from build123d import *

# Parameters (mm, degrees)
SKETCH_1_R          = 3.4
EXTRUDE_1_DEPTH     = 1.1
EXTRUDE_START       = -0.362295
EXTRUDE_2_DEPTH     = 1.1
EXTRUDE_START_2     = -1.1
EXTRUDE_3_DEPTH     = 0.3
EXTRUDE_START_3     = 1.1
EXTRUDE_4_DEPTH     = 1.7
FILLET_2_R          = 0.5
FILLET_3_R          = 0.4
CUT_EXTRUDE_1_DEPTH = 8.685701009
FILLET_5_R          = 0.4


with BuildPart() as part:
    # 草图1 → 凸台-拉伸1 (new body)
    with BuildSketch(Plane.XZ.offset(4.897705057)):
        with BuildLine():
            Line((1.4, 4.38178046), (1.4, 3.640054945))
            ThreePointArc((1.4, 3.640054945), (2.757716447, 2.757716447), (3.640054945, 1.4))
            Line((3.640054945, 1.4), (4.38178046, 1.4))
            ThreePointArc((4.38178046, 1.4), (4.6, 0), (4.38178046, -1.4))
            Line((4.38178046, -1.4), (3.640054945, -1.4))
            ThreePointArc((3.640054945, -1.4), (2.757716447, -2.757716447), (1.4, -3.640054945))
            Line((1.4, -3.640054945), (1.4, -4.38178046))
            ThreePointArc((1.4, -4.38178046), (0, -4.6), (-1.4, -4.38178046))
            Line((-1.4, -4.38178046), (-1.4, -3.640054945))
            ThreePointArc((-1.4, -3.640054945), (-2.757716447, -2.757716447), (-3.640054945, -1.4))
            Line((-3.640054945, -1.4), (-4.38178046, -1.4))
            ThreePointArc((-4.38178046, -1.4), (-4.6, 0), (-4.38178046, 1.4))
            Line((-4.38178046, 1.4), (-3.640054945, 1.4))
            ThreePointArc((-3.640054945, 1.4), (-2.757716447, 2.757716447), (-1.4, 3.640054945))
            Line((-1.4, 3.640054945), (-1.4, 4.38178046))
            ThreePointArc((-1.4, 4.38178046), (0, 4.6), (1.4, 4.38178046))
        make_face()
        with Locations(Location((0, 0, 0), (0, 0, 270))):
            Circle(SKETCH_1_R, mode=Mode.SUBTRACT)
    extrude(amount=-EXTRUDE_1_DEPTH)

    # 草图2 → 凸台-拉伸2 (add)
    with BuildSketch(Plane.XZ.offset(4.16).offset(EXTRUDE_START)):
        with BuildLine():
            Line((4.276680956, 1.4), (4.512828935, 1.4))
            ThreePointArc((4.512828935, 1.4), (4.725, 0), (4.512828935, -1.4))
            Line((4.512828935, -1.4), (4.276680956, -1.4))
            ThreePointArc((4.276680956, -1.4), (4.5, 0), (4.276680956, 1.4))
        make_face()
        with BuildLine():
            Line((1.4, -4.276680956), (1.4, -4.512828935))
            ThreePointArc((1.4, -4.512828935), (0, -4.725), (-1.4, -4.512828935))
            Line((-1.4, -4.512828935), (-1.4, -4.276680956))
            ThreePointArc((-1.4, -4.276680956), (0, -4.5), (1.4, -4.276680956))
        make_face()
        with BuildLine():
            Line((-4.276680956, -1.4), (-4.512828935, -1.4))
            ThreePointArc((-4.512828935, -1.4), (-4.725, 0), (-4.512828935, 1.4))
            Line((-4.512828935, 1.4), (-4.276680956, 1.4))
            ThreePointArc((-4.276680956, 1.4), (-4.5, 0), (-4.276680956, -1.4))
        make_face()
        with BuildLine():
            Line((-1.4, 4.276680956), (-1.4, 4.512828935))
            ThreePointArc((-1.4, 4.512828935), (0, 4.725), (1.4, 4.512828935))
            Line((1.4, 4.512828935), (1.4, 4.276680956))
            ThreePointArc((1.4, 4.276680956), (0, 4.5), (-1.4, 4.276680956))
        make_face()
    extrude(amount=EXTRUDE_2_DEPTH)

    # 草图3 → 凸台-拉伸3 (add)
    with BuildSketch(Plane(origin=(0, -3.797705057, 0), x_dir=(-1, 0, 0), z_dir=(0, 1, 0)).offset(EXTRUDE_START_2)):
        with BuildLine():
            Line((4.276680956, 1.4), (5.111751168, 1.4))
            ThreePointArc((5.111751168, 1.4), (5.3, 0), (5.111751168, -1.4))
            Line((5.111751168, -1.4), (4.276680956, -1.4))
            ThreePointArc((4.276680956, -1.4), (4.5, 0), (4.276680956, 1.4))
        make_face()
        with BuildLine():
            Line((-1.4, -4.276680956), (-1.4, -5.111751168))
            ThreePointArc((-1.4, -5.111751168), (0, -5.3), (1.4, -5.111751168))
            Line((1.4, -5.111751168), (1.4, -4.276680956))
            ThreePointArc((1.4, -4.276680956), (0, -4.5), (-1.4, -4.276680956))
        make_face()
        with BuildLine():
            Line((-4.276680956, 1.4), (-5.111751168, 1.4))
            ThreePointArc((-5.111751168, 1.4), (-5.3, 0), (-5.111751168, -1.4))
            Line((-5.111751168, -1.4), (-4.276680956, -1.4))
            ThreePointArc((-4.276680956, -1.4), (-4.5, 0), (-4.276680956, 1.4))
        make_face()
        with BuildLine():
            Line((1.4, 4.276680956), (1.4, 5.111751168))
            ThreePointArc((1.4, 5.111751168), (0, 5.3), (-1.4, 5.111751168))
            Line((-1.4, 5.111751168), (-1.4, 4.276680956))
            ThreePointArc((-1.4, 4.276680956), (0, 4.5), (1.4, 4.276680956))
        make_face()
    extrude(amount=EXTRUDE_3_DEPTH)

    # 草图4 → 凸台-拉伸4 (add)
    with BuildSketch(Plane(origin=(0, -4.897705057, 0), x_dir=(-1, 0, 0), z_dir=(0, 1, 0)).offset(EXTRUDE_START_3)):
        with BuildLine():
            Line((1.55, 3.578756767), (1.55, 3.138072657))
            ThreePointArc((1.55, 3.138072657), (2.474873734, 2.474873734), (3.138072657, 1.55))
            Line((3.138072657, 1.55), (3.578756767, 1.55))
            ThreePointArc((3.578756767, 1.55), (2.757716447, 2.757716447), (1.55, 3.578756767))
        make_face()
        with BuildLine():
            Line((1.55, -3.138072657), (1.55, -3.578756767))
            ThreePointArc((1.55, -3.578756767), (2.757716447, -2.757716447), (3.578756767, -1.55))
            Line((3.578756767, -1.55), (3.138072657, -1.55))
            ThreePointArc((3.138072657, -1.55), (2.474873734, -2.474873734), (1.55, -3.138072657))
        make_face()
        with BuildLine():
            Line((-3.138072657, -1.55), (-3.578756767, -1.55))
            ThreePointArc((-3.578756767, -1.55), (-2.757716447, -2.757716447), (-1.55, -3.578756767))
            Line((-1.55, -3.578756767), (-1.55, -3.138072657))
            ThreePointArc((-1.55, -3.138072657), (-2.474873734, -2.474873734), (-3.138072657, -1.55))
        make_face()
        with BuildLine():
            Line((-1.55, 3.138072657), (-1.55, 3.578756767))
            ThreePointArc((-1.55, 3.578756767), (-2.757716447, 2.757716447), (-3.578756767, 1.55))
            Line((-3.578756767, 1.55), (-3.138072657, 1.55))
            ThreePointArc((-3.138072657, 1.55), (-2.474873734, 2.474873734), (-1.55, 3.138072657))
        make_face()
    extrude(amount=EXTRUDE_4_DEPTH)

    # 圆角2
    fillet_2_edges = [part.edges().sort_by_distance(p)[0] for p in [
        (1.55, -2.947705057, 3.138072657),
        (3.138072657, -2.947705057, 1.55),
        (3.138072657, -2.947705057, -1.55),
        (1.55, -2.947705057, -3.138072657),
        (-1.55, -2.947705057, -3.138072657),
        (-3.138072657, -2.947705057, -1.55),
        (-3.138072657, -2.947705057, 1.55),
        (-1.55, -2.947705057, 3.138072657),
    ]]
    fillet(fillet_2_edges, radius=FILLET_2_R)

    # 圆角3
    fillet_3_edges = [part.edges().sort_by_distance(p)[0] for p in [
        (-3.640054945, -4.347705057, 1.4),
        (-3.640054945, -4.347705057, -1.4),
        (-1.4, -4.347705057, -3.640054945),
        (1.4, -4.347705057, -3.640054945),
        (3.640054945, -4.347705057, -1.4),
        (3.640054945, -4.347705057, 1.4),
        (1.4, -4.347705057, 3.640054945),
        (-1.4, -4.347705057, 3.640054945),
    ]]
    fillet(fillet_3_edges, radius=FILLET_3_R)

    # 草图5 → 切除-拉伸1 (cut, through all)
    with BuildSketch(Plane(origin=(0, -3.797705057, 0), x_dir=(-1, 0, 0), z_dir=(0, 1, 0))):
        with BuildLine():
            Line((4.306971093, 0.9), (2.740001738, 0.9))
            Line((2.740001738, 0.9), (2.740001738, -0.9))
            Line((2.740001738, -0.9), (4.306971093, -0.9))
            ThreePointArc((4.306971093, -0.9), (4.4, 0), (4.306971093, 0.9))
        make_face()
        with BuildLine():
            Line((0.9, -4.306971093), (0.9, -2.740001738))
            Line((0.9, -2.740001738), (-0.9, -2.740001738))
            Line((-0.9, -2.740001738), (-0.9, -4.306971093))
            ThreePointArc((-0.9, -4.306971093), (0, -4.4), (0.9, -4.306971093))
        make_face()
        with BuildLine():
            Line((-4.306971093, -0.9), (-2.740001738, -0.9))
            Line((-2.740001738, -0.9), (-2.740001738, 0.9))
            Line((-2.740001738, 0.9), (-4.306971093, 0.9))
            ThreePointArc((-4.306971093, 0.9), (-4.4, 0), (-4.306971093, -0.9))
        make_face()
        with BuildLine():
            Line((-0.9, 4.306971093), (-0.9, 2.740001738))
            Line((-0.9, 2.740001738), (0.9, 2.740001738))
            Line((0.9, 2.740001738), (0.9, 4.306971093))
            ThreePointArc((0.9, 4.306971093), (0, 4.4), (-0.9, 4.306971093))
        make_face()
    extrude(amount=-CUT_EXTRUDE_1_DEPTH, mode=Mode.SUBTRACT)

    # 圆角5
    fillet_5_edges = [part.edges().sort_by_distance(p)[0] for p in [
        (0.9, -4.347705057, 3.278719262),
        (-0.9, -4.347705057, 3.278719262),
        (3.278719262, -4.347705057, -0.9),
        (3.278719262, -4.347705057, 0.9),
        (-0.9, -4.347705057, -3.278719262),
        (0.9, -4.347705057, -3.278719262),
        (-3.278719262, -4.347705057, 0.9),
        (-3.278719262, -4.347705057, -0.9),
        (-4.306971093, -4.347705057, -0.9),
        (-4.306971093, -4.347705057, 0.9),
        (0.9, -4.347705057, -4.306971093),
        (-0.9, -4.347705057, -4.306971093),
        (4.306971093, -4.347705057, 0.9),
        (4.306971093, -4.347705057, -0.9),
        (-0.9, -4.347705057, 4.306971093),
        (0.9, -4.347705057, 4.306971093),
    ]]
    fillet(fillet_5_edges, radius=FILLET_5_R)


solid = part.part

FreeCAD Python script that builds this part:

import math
import FreeCAD as App
import Part
import Sketcher

V = App.Vector


def edges_at(feature, points):
    """Names of the edges that pass closest to the given points."""
    edges = feature.Shape.Edges
    near = lambda p: min(range(len(edges)), key=lambda i: edges[i].distToShape(Part.Vertex(*p))[0])
    return sorted({f"Edge{near(p) + 1}" for p in points})

doc = App.newDocument("Part")
body = doc.addObject("PartDesign::Body", "Body")

sketch1 = doc.addObject("Sketcher::SketchObject", "Sketch")
body.addObject(sketch1)
sketch1.AttachmentSupport = (doc.XZ_Plane, [""])
sketch1.MapMode = "FlatFace"
sketch1.AttachmentOffset = App.Placement(V(0, 0, 4.897705), App.Rotation())
sketch1.addGeometry([
    Part.LineSegment(V(1.4, 3.6, 0), V(1.4, 4.4, 0)),
    Part.ArcOfCircle(Part.Circle(V(0, 0, 0), V(0, 0, 1), 4.6), math.radians(72), math.radians(108)),
    Part.LineSegment(V(-1.4, 4.4, 0), V(-1.4, 3.6, 0)),
    Part.ArcOfCircle(Part.Circle(V(0, 0, 0), V(0, 0, 1), 3.9), math.radians(111), math.radians(159)),
    Part.LineSegment(V(-3.6, 1.4, 0), V(-4.4, 1.4, 0)),
    Part.ArcOfCircle(Part.Circle(V(0, 0, 0), V(0, 0, 1), 4.6), math.radians(162), math.radians(198)),
    Part.LineSegment(V(-4.4, -1.4, 0), V(-3.6, -1.4, 0)),
    Part.ArcOfCircle(Part.Circle(V(0, 0, 0), V(0, 0, 1), 3.9), math.radians(-159), math.radians(-111)),
    Part.LineSegment(V(-1.4, -3.6, 0), V(-1.4, -4.4, 0)),
    Part.ArcOfCircle(Part.Circle(V(0, 0, 0), V(0, 0, 1), 4.6), math.radians(-108), math.radians(-72)),
    Part.LineSegment(V(1.4, -4.4, 0), V(1.4, -3.6, 0)),
    Part.ArcOfCircle(Part.Circle(V(0, 0, 0), V(0, 0, 1), 3.9), math.radians(-69), math.radians(-21)),
    Part.LineSegment(V(3.6, -1.4, 0), V(4.4, -1.4, 0)),
    Part.ArcOfCircle(Part.Circle(V(0, 0, 0), V(0, 0, 1), 4.6), math.radians(-18), math.radians(18)),
    Part.LineSegment(V(4.4, 1.4, 0), V(3.6, 1.4, 0)),
    Part.ArcOfCircle(Part.Circle(V(0, 0, 0), V(0, 0, 1), 3.9), math.radians(21), math.radians(69)),
    Part.Circle(V(0, 0, 0), V(0, 0, 1), 3.4),
], False)
sketch1.addConstraint([
    Sketcher.Constraint("Coincident", 0, 2, 1, 1),
    Sketcher.Constraint("Coincident", 1, 2, 2, 1),
    Sketcher.Constraint("Coincident", 2, 2, 3, 1),
    Sketcher.Constraint("Coincident", 3, 2, 4, 1),
    Sketcher.Constraint("Coincident", 4, 2, 5, 1),
    Sketcher.Constraint("Coincident", 5, 2, 6, 1),
    Sketcher.Constraint("Coincident", 6, 2, 7, 1),
    Sketcher.Constraint("Coincident", 7, 2, 8, 1),
    Sketcher.Constraint("Coincident", 8, 2, 9, 1),
    Sketcher.Constraint("Coincident", 9, 2, 10, 1),
    Sketcher.Constraint("Coincident", 10, 2, 11, 1),
    Sketcher.Constraint("Coincident", 11, 2, 12, 1),
    Sketcher.Constraint("Coincident", 12, 2, 13, 1),
    Sketcher.Constraint("Coincident", 13, 2, 14, 1),
    Sketcher.Constraint("Coincident", 14, 2, 15, 1),
    Sketcher.Constraint("Coincident", 15, 2, 0, 1),
    Sketcher.Constraint("Vertical", 0),
    Sketcher.Constraint("Vertical", 2),
    Sketcher.Constraint("Horizontal", 4),
    Sketcher.Constraint("Horizontal", 6),
    Sketcher.Constraint("Vertical", 8),
    Sketcher.Constraint("Vertical", 10),
    Sketcher.Constraint("Horizontal", 12),
    Sketcher.Constraint("Horizontal", 14),
    Sketcher.Constraint("Coincident", 1, 3, -1, 1),
    Sketcher.Constraint("Coincident", 3, 3, -1, 1),
    Sketcher.Constraint("Coincident", 5, 3, -1, 1),
    Sketcher.Constraint("Coincident", 7, 3, -1, 1),
    Sketcher.Constraint("Coincident", 9, 3, -1, 1),
    Sketcher.Constraint("Coincident", 11, 3, -1, 1),
    Sketcher.Constraint("Coincident", 13, 3, -1, 1),
    Sketcher.Constraint("Coincident", 15, 3, -1, 1),
    Sketcher.Constraint("Coincident", 16, 3, -1, 1),
    Sketcher.Constraint("Equal", 1, 5),
    Sketcher.Constraint("Equal", 3, 7),
    Sketcher.Constraint("Equal", 5, 9),
    Sketcher.Constraint("Equal", 7, 11),
    Sketcher.Constraint("Equal", 9, 13),
    Sketcher.Constraint("Equal", 11, 15),
    Sketcher.Constraint("Horizontal", 0, 2, 1, 2),
    Sketcher.Constraint("Horizontal", 8, 2, 9, 2),
    Sketcher.Constraint("Horizontal", 6, 2, 11, 2),
    Sketcher.Constraint("Horizontal", 4, 2, 13, 2),
    Sketcher.Constraint("Vertical", 4, 2, 5, 2),
    Sketcher.Constraint("Vertical", 2, 2, 7, 2),
    Sketcher.Constraint("Equal", 14, 0),
    Sketcher.Constraint("Diameter", 16, 6.8),
    Sketcher.Constraint("Radius", 1, 4.6),
    Sketcher.Constraint("Radius", 3, 3.9),
    Sketcher.Constraint("DistanceX", -1, 1, 0, 2, 1.4),
])
pad1 = doc.addObject("PartDesign::Pad", "Pad")
body.addObject(pad1)
pad1.Profile = sketch1
pad1.Length = 1.1
pad1.Reversed = True

sketch2 = doc.addObject("Sketcher::SketchObject", "Sketch001")
body.addObject(sketch2)
sketch2.AttachmentSupport = (doc.XZ_Plane, [""])
sketch2.MapMode = "FlatFace"
sketch2.AttachmentOffset = App.Placement(V(0, 0, 3.797705), App.Rotation())
sketch2.addGeometry([
    Part.LineSegment(V(4.51, 1.4, 0), V(4.28, 1.4, 0)),
    Part.ArcOfCircle(Part.Circle(V(0, 0, 0), V(0, 0, 1), 4.5), math.radians(-18), math.radians(18)),
    Part.LineSegment(V(4.28, -1.4, 0), V(4.51, -1.4, 0)),
    Part.ArcOfCircle(Part.Circle(V(0, 0, 0), V(0, 0, 1), 4.72), math.radians(-17), math.radians(17)),
    Part.LineSegment(V(1.4, -4.51, 0), V(1.4, -4.28, 0)),
    Part.ArcOfCircle(Part.Circle(V(0, 0, 0), V(0, 0, 1), 4.5), math.radians(-108), math.radians(-72)),
    Part.LineSegment(V(-1.4, -4.28, 0), V(-1.4, -4.51, 0)),
    Part.ArcOfCircle(Part.Circle(V(0, 0, 0), V(0, 0, 1), 4.72), math.radians(-107), math.radians(-73)),
    Part.LineSegment(V(-4.51, -1.4, 0), V(-4.28, -1.4, 0)),
    Part.ArcOfCircle(Part.Circle(V(0, 0, 0), V(0, 0, 1), 4.5), math.radians(162), math.radians(198)),
    Part.LineSegment(V(-4.28, 1.4, 0), V(-4.51, 1.4, 0)),
    Part.ArcOfCircle(Part.Circle(V(0, 0, 0), V(0, 0, 1), 4.72), math.radians(163), math.radians(197)),
    Part.LineSegment(V(-1.4, 4.51, 0), V(-1.4, 4.28, 0)),
    Part.ArcOfCircle(Part.Circle(V(0, 0, 0), V(0, 0, 1), 4.5), math.radians(72), math.radians(108)),
    Part.LineSegment(V(1.4, 4.28, 0), V(1.4, 4.51, 0)),
    Part.ArcOfCircle(Part.Circle(V(0, 0, 0), V(0, 0, 1), 4.72), math.radians(73), math.radians(107)),
], False)
sketch2.addConstraint([
    Sketcher.Constraint("Coincident", 0, 2, 1, 2),
    Sketcher.Constraint("Coincident", 1, 1, 2, 1),
    Sketcher.Constraint("Coincident", 2, 2, 3, 1),
    Sketcher.Constraint("Coincident", 3, 2, 0, 1),
    Sketcher.Constraint("Coincident", 4, 2, 5, 2),
    Sketcher.Constraint("Coincident", 5, 1, 6, 1),
    Sketcher.Constraint("Coincident", 6, 2, 7, 1),
    Sketcher.Constraint("Coincident", 7, 2, 4, 1),
    Sketcher.Constraint("Coincident", 8, 2, 9, 2),
    Sketcher.Constraint("Coincident", 9, 1, 10, 1),
    Sketcher.Constraint("Coincident", 10, 2, 11, 1),
    Sketcher.Constraint("Coincident", 11, 2, 8, 1),
    Sketcher.Constraint("Coincident", 12, 2, 13, 2),
    Sketcher.Constraint("Coincident", 13, 1, 14, 1),
    Sketcher.Constraint("Coincident", 14, 2, 15, 1),
    Sketcher.Constraint("Coincident", 15, 2, 12, 1),
    Sketcher.Constraint("Horizontal", 0),
    Sketcher.Constraint("Horizontal", 2),
    Sketcher.Constraint("Vertical", 4),
    Sketcher.Constraint("Vertical", 6),
    Sketcher.Constraint("Horizontal", 8),
    Sketcher.Constraint("Horizontal", 10),
    Sketcher.Constraint("Vertical", 12),
    Sketcher.Constraint("Vertical", 14),
    Sketcher.Constraint("Coincident", 1, 3, -1, 1),
    Sketcher.Constraint("Coincident", 3, 3, -1, 1),
    Sketcher.Constraint("Coincident", 5, 3, -1, 1),
    Sketcher.Constraint("Coincident", 7, 3, -1, 1),
    Sketcher.Constraint("Coincident", 9, 3, -1, 1),
    Sketcher.Constraint("Coincident", 11, 3, -1, 1),
    Sketcher.Constraint("Coincident", 13, 3, -1, 1),
    Sketcher.Constraint("Coincident", 15, 3, -1, 1),
    Sketcher.Constraint("Equal", 1, 5),
    Sketcher.Constraint("Equal", 3, 7),
    Sketcher.Constraint("Equal", 5, 9),
    Sketcher.Constraint("Equal", 7, 11),
    Sketcher.Constraint("Equal", 9, 13),
    Sketcher.Constraint("Equal", 11, 15),
    Sketcher.Constraint("Horizontal", 4, 2, 5, 1),
    Sketcher.Constraint("Horizontal", 2, 2, 8, 2),
    Sketcher.Constraint("Horizontal", 3, 2, 9, 1),
    Sketcher.Constraint("Horizontal", 12, 2, 13, 1),
    Sketcher.Constraint("Vertical", 0, 2, 1, 1),
    Sketcher.Constraint("Vertical", 6, 2, 12, 2),
    Sketcher.Constraint("Equal", 10, 4),
    Sketcher.Constraint("Radius", 1, 4.5),
    Sketcher.Constraint("Radius", 3, 4.725),
    Sketcher.Constraint("DistanceY", -1, 1, 0, 2, 1.4),
])
pad2 = doc.addObject("PartDesign::Pad", "Pad001")
body.addObject(pad2)
pad2.Profile = sketch2
pad2.Length = 1.1

sketch3 = doc.addObject("Sketcher::SketchObject", "Sketch002")
body.addObject(sketch3)
sketch3.AttachmentSupport = (doc.XZ_Plane, [""])
sketch3.MapMode = "FlatFace"
sketch3.AttachmentOffset = App.Placement(V(0, 0, 4.897705), App.Rotation())
sketch3.addGeometry([
    Part.LineSegment(V(-5.1, 1.4, 0), V(-4.3, 1.4, 0)),
    Part.ArcOfCircle(Part.Circle(V(0, 0, 0), V(0, 0, 1), 4.5), math.radians(162), math.radians(198)),
    Part.LineSegment(V(-4.3, -1.4, 0), V(-5.1, -1.4, 0)),
    Part.ArcOfCircle(Part.Circle(V(0, 0, 0), V(0, 0, 1), 5.3), math.radians(165), math.radians(195)),
    Part.LineSegment(V(1.4, -4.3, 0), V(1.4, -5.1, 0)),
    Part.ArcOfCircle(Part.Circle(V(0, 0, 0), V(0, 0, 1), 5.3), math.radians(-105), math.radians(-75)),
    Part.LineSegment(V(-1.4, -5.1, 0), V(-1.4, -4.3, 0)),
    Part.ArcOfCircle(Part.Circle(V(0, 0, 0), V(0, 0, 1), 4.5), math.radians(-108), math.radians(-72)),
    Part.LineSegment(V(4.3, 1.4, 0), V(5.1, 1.4, 0)),
    Part.ArcOfCircle(Part.Circle(V(0, 0, 0), V(0, 0, 1), 5.3), math.radians(-15), math.radians(15)),
    Part.LineSegment(V(5.1, -1.4, 0), V(4.3, -1.4, 0)),
    Part.ArcOfCircle(Part.Circle(V(0, 0, 0), V(0, 0, 1), 4.5), math.radians(-18), math.radians(18)),
    Part.LineSegment(V(-1.4, 4.3, 0), V(-1.4, 5.1, 0)),
    Part.ArcOfCircle(Part.Circle(V(0, 0, 0), V(0, 0, 1), 5.3), math.radians(75), math.radians(105)),
    Part.LineSegment(V(1.4, 5.1, 0), V(1.4, 4.3, 0)),
    Part.ArcOfCircle(Part.Circle(V(0, 0, 0), V(0, 0, 1), 4.5), math.radians(72), math.radians(108)),
], False)
sketch3.addConstraint([
    Sketcher.Constraint("Coincident", 0, 2, 1, 1),
    Sketcher.Constraint("Coincident", 1, 2, 2, 1),
    Sketcher.Constraint("Coincident", 2, 2, 3, 2),
    Sketcher.Constraint("Coincident", 3, 1, 0, 1),
    Sketcher.Constraint("Coincident", 4, 2, 5, 2),
    Sketcher.Constraint("Coincident", 5, 1, 6, 1),
    Sketcher.Constraint("Coincident", 6, 2, 7, 1),
    Sketcher.Constraint("Coincident", 7, 2, 4, 1),
    Sketcher.Constraint("Coincident", 8, 2, 9, 2),
    Sketcher.Constraint("Coincident", 9, 1, 10, 1),
    Sketcher.Constraint("Coincident", 10, 2, 11, 1),
    Sketcher.Constraint("Coincident", 11, 2, 8, 1),
    Sketcher.Constraint("Coincident", 12, 2, 13, 2),
    Sketcher.Constraint("Coincident", 13, 1, 14, 1),
    Sketcher.Constraint("Coincident", 14, 2, 15, 1),
    Sketcher.Constraint("Coincident", 15, 2, 12, 1),
    Sketcher.Constraint("Horizontal", 0),
    Sketcher.Constraint("Horizontal", 2),
    Sketcher.Constraint("Vertical", 4),
    Sketcher.Constraint("Vertical", 6),
    Sketcher.Constraint("Horizontal", 8),
    Sketcher.Constraint("Horizontal", 10),
    Sketcher.Constraint("Vertical", 12),
    Sketcher.Constraint("Vertical", 14),
    Sketcher.Constraint("Coincident", 1, 3, -1, 1),
    Sketcher.Constraint("Coincident", 3, 3, -1, 1),
    Sketcher.Constraint("Coincident", 5, 3, -1, 1),
    Sketcher.Constraint("Coincident", 7, 3, -1, 1),
    Sketcher.Constraint("Coincident", 9, 3, -1, 1),
    Sketcher.Constraint("Coincident", 11, 3, -1, 1),
    Sketcher.Constraint("Coincident", 13, 3, -1, 1),
    Sketcher.Constraint("Coincident", 15, 3, -1, 1),
    Sketcher.Constraint("Equal", 3, 5),
    Sketcher.Constraint("Equal", 1, 7),
    Sketcher.Constraint("Equal", 5, 9),
    Sketcher.Constraint("Equal", 7, 11),
    Sketcher.Constraint("Equal", 9, 13),
    Sketcher.Constraint("Equal", 11, 15),
    Sketcher.Constraint("Horizontal", 4, 2, 5, 1),
    Sketcher.Constraint("Horizontal", 3, 1, 8, 2),
    Sketcher.Constraint("Horizontal", 2, 2, 9, 1),
    Sketcher.Constraint("Horizontal", 12, 2, 13, 1),
    Sketcher.Constraint("Vertical", 0, 2, 1, 2),
    Sketcher.Constraint("Vertical", 6, 2, 12, 2),
    Sketcher.Constraint("Equal", 10, 4),
    Sketcher.Constraint("Radius", 1, 4.5),
    Sketcher.Constraint("Radius", 3, 5.3),
    Sketcher.Constraint("DistanceY", -1, 1, 0, 2, 1.4),
])
pad3 = doc.addObject("PartDesign::Pad", "Pad002")
body.addObject(pad3)
pad3.Profile = sketch3
pad3.Length = 0.3
pad3.Reversed = True

sketch4 = doc.addObject("Sketcher::SketchObject", "Sketch003")
body.addObject(sketch4)
sketch4.AttachmentSupport = (doc.XZ_Plane, [""])
sketch4.MapMode = "FlatFace"
sketch4.AttachmentOffset = App.Placement(V(0, 0, 3.797705), App.Rotation())
sketch4.addGeometry([
    Part.LineSegment(V(-1.55, 3.58, 0), V(-1.55, 3.14, 0)),
    Part.ArcOfCircle(Part.Circle(V(0, 0, 0), V(0, 0, 1), 3.5), math.radians(116), math.radians(154)),
    Part.LineSegment(V(-3.14, 1.55, 0), V(-3.58, 1.55, 0)),
    Part.ArcOfCircle(Part.Circle(V(0, 0, 0), V(0, 0, 1), 3.9), math.radians(113), math.radians(157)),
    Part.LineSegment(V(-1.55, -3.14, 0), V(-1.55, -3.58, 0)),
    Part.ArcOfCircle(Part.Circle(V(0, 0, 0), V(0, 0, 1), 3.9), math.radians(-157), math.radians(-113)),
    Part.LineSegment(V(-3.58, -1.55, 0), V(-3.14, -1.55, 0)),
    Part.ArcOfCircle(Part.Circle(V(0, 0, 0), V(0, 0, 1), 3.5), math.radians(-154), math.radians(-116)),
    Part.LineSegment(V(3.14, -1.55, 0), V(3.58, -1.55, 0)),
    Part.ArcOfCircle(Part.Circle(V(0, 0, 0), V(0, 0, 1), 3.9), math.radians(-67), math.radians(-23)),
    Part.LineSegment(V(1.55, -3.58, 0), V(1.55, -3.14, 0)),
    Part.ArcOfCircle(Part.Circle(V(0, 0, 0), V(0, 0, 1), 3.5), math.radians(-64), math.radians(-26)),
    Part.LineSegment(V(1.55, 3.14, 0), V(1.55, 3.58, 0)),
    Part.ArcOfCircle(Part.Circle(V(0, 0, 0), V(0, 0, 1), 3.9), math.radians(23), math.radians(67)),
    Part.LineSegment(V(3.58, 1.55, 0), V(3.14, 1.55, 0)),
    Part.ArcOfCircle(Part.Circle(V(0, 0, 0), V(0, 0, 1), 3.5), math.radians(26), math.radians(64)),
], False)
sketch4.addConstraint([
    Sketcher.Constraint("Coincident", 0, 2, 1, 1),
    Sketcher.Constraint("Coincident", 1, 2, 2, 1),
    Sketcher.Constraint("Coincident", 2, 2, 3, 2),
    Sketcher.Constraint("Coincident", 3, 1, 0, 1),
    Sketcher.Constraint("Coincident", 4, 2, 5, 2),
    Sketcher.Constraint("Coincident", 5, 1, 6, 1),
    Sketcher.Constraint("Coincident", 6, 2, 7, 1),
    Sketcher.Constraint("Coincident", 7, 2, 4, 1),
    Sketcher.Constraint("Coincident", 8, 2, 9, 2),
    Sketcher.Constraint("Coincident", 9, 1, 10, 1),
    Sketcher.Constraint("Coincident", 10, 2, 11, 1),
    Sketcher.Constraint("Coincident", 11, 2, 8, 1),
    Sketcher.Constraint("Coincident", 12, 2, 13, 2),
    Sketcher.Constraint("Coincident", 13, 1, 14, 1),
    Sketcher.Constraint("Coincident", 14, 2, 15, 1),
    Sketcher.Constraint("Coincident", 15, 2, 12, 1),
    Sketcher.Constraint("Vertical", 0),
    Sketcher.Constraint("Horizontal", 2),
    Sketcher.Constraint("Vertical", 4),
    Sketcher.Constraint("Horizontal", 6),
    Sketcher.Constraint("Horizontal", 8),
    Sketcher.Constraint("Vertical", 10),
    Sketcher.Constraint("Vertical", 12),
    Sketcher.Constraint("Horizontal", 14),
    Sketcher.Constraint("Coincident", 1, 3, -1, 1),
    Sketcher.Constraint("Coincident", 3, 3, -1, 1),
    Sketcher.Constraint("Coincident", 5, 3, -1, 1),
    Sketcher.Constraint("Coincident", 7, 3, -1, 1),
    Sketcher.Constraint("Coincident", 9, 3, -1, 1),
    Sketcher.Constraint("Coincident", 11, 3, -1, 1),
    Sketcher.Constraint("Coincident", 13, 3, -1, 1),
    Sketcher.Constraint("Coincident", 15, 3, -1, 1),
    Sketcher.Constraint("Equal", 3, 5),
    Sketcher.Constraint("Equal", 1, 7),
    Sketcher.Constraint("Equal", 5, 9),
    Sketcher.Constraint("Equal", 7, 11),
    Sketcher.Constraint("Equal", 9, 13),
    Sketcher.Constraint("Equal", 11, 15),
    Sketcher.Constraint("Horizontal", 6, 2, 8, 2),
    Sketcher.Constraint("Horizontal", 4, 2, 9, 1),
    Sketcher.Constraint("Horizontal", 3, 1, 12, 2),
    Sketcher.Constraint("Horizontal", 2, 2, 13, 1),
    Sketcher.Constraint("Vertical", 3, 1, 4, 2),
    Sketcher.Constraint("Vertical", 2, 2, 5, 1),
    Sketcher.Constraint("Equal", 14, 0),
    Sketcher.Constraint("Radius", 1, 3.5),
    Sketcher.Constraint("Radius", 3, 3.9),
    Sketcher.Constraint("DistanceY", 5, 1, 2, 2, 3.1),
])
pad4 = doc.addObject("PartDesign::Pad", "Pad003")
body.addObject(pad4)
pad4.Profile = sketch4
pad4.Length = 1.7
pad4.Reversed = True
doc.recompute()

fillet = doc.addObject("PartDesign::Fillet", "Fillet")
body.addObject(fillet)
fillet.Base = (pad4, edges_at(pad4, [
    (1.55, -2.948, 3.138),
    (3.138, -2.948, 1.55),
    (3.138, -2.948, -1.55),
    (1.55, -2.948, -3.138),
    (-1.55, -2.948, -3.138),
    (-3.138, -2.948, -1.55),
    (-3.138, -2.948, 1.55),
    (-1.55, -2.948, 3.138),
]))
fillet.Radius = 0.5
doc.recompute()

fillet2 = doc.addObject("PartDesign::Fillet", "Fillet001")
body.addObject(fillet2)
fillet2.Base = (fillet, edges_at(fillet, [
    (-3.64, -4.348, 1.4),
    (-3.64, -4.348, -1.4),
    (-1.4, -4.348, -3.64),
    (1.4, -4.348, -3.64),
    (3.64, -4.348, -1.4),
    (3.64, -4.348, 1.4),
    (1.4, -4.348, 3.64),
    (-1.4, -4.348, 3.64),
]))
fillet2.Radius = 0.4

sketch5 = doc.addObject("Sketcher::SketchObject", "Sketch004")
body.addObject(sketch5)
sketch5.AttachmentSupport = (doc.XZ_Plane, [""])
sketch5.MapMode = "FlatFace"
sketch5.AttachmentOffset = App.Placement(V(0, 0, 3.797705), App.Rotation())
sketch5.addGeometry([
    Part.LineSegment(V(-4.3, 0.9, 0), V(-2.7, 0.9, 0)),
    Part.LineSegment(V(-2.7, 0.9, 0), V(-2.7, -0.9, 0)),
    Part.LineSegment(V(-2.7, -0.9, 0), V(-4.3, -0.9, 0)),
    Part.ArcOfCircle(Part.Circle(V(0, 0, 0), V(0, 0, 1), 4.4), math.radians(168), math.radians(192)),
    Part.LineSegment(V(-0.9, -4.3, 0), V(-0.9, -2.7, 0)),
    Part.LineSegment(V(-0.9, -2.7, 0), V(0.9, -2.7, 0)),
    Part.LineSegment(V(0.9, -2.7, 0), V(0.9, -4.3, 0)),
    Part.ArcOfCircle(Part.Circle(V(0, 0, 0), V(0, 0, 1), 4.4), math.radians(-102), math.radians(-78)),
    Part.LineSegment(V(4.3, -0.9, 0), V(2.7, -0.9, 0)),
    Part.LineSegment(V(2.7, -0.9, 0), V(2.7, 0.9, 0)),
    Part.LineSegment(V(2.7, 0.9, 0), V(4.3, 0.9, 0)),
    Part.ArcOfCircle(Part.Circle(V(0, 0, 0), V(0, 0, 1), 4.4), math.radians(-12), math.radians(12)),
    Part.LineSegment(V(0.9, 4.3, 0), V(0.9, 2.7, 0)),
    Part.LineSegment(V(0.9, 2.7, 0), V(-0.9, 2.7, 0)),
    Part.LineSegment(V(-0.9, 2.7, 0), V(-0.9, 4.3, 0)),
    Part.ArcOfCircle(Part.Circle(V(0, 0, 0), V(0, 0, 1), 4.4), math.radians(78), math.radians(102)),
], False)
sketch5.addConstraint([
    Sketcher.Constraint("Coincident", 0, 2, 1, 1),
    Sketcher.Constraint("Coincident", 1, 2, 2, 1),
    Sketcher.Constraint("Coincident", 2, 2, 3, 2),
    Sketcher.Constraint("Coincident", 3, 1, 0, 1),
    Sketcher.Constraint("Coincident", 4, 2, 5, 1),
    Sketcher.Constraint("Coincident", 5, 2, 6, 1),
    Sketcher.Constraint("Coincident", 6, 2, 7, 2),
    Sketcher.Constraint("Coincident", 7, 1, 4, 1),
    Sketcher.Constraint("Coincident", 8, 2, 9, 1),
    Sketcher.Constraint("Coincident", 9, 2, 10, 1),
    Sketcher.Constraint("Coincident", 10, 2, 11, 2),
    Sketcher.Constraint("Coincident", 11, 1, 8, 1),
    Sketcher.Constraint("Coincident", 12, 2, 13, 1),
    Sketcher.Constraint("Coincident", 13, 2, 14, 1),
    Sketcher.Constraint("Coincident", 14, 2, 15, 2),
    Sketcher.Constraint("Coincident", 15, 1, 12, 1),
    Sketcher.Constraint("Horizontal", 0),
    Sketcher.Constraint("Vertical", 1),
    Sketcher.Constraint("Horizontal", 2),
    Sketcher.Constraint("Vertical", 4),
    Sketcher.Constraint("Horizontal", 5),
    Sketcher.Constraint("Vertical", 6),
    Sketcher.Constraint("Horizontal", 8),
    Sketcher.Constraint("Vertical", 9),
    Sketcher.Constraint("Horizontal", 10),
    Sketcher.Constraint("Vertical", 12),
    Sketcher.Constraint("Horizontal", 13),
    Sketcher.Constraint("Vertical", 14),
    Sketcher.Constraint("Coincident", 3, 3, -1, 1),
    Sketcher.Constraint("Coincident", 7, 3, -1, 1),
    Sketcher.Constraint("Coincident", 11, 3, -1, 1),
    Sketcher.Constraint("Coincident", 15, 3, -1, 1),
    Sketcher.Constraint("Equal", 3, 7),
    Sketcher.Constraint("Equal", 7, 11),
    Sketcher.Constraint("Equal", 11, 15),
    Sketcher.Constraint("Symmetric", 0, 2, 8, 2, -1, 1),
    Sketcher.Constraint("Symmetric", 4, 2, 12, 2, -1, 1),
    Sketcher.Constraint("Horizontal", 6, 2, 7, 1),
    Sketcher.Constraint("Horizontal", 2, 2, 8, 2),
    Sketcher.Constraint("Horizontal", 3, 1, 9, 2),
    Sketcher.Constraint("Horizontal", 14, 2, 15, 1),
    Sketcher.Constraint("Equal", 13, 1),
    Sketcher.Constraint("Equal", 10, 4),
    Sketcher.Constraint("Radius", 3, 4.4),
    Sketcher.Constraint("DistanceX", 5, 1, 5, 2, 1.8),
    Sketcher.Constraint("DistanceX", 0, 2, -1, 1, 2.740002),
])
pocket1 = doc.addObject("PartDesign::Pocket", "Pocket")
body.addObject(pocket1)
pocket1.Profile = sketch5
pocket1.Type = "ThroughAll"
pocket1.Reversed = True
doc.recompute()

fillet3 = doc.addObject("PartDesign::Fillet", "Fillet002")
body.addObject(fillet3)
fillet3.Base = (pocket1, edges_at(pocket1, [
    (0.9, -4.348, 3.279),
    (-0.9, -4.348, 3.279),
    (3.279, -4.348, -0.9),
    (3.279, -4.348, 0.9),
    (-0.9, -4.348, -3.279),
    (0.9, -4.348, -3.279),
    (-3.279, -4.348, 0.9),
    (-3.279, -4.348, -0.9),
    (-4.307, -4.348, -0.9),
    (-4.307, -4.348, 0.9),
    (0.9, -4.348, -4.307),
    (-0.9, -4.348, -4.307),
    (4.307, -4.348, 0.9),
    (4.307, -4.348, -0.9),
    (-0.9, -4.348, 4.307),
    (0.9, -4.348, 4.307),
]))
fillet3.Radius = 0.4

doc.recompute()
